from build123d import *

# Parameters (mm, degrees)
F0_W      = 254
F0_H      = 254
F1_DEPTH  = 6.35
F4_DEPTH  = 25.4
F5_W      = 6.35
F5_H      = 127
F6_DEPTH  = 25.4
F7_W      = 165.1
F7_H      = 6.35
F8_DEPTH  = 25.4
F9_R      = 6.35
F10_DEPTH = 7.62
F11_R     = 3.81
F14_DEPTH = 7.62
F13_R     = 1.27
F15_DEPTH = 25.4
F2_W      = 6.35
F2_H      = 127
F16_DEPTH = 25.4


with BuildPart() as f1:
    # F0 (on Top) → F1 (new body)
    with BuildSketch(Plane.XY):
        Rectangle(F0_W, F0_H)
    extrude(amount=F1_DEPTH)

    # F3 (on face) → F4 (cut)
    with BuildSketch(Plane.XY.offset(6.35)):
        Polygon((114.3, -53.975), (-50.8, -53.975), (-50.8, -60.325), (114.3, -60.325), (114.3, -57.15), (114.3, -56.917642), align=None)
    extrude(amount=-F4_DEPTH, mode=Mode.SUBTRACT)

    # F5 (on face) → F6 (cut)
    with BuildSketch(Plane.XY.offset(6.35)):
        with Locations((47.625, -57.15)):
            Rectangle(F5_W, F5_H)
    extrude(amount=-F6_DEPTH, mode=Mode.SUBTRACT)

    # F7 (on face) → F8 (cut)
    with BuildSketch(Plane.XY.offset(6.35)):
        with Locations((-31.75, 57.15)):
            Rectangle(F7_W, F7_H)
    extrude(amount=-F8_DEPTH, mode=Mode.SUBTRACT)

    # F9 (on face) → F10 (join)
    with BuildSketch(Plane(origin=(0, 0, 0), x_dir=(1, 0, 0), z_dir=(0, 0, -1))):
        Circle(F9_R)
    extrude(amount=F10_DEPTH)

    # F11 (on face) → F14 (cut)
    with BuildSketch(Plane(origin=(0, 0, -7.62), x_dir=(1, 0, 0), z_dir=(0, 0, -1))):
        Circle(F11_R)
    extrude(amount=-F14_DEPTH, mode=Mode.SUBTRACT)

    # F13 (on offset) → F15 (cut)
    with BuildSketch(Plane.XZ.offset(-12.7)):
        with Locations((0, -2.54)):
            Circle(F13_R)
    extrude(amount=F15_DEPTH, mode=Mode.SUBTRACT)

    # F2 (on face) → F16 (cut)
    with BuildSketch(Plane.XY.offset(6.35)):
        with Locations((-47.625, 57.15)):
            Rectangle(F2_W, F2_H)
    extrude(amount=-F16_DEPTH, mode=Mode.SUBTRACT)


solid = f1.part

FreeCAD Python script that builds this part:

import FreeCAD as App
import Part
import Sketcher

V = App.Vector
Q = App.Units.Quantity


def add_polygon(sketch, points):
    """Adds a closed chain of lines whose ends are joined by coincident constraints."""
    first, n = sketch.GeometryCount, len(points)
    for a, b in zip(points, points[1:] + points[:1]):
        sketch.addGeometry(Part.LineSegment(App.Vector(*a, 0), App.Vector(*b, 0)), False)
    for i in range(n):
        sketch.addConstraint(Sketcher.Constraint("Coincident", first + i, 2, first + (i + 1) % n, 1))

doc = App.newDocument("Part")
params = doc.addObject("Spreadsheet::Sheet", "Params")
for row, (alias, value) in enumerate([
    ("sketch1_width", "10 in"),
    ("pad1_length", "0.25 in"),
    ("sketch2_width", "6.5 in"),
    ("sketch2_height", "0.25 in"),
    ("pocket1_length", "1 in"),
    ("sketch3_height", "5 in"),
    ("sketch3_width", "0.25 in"),
    ("pocket2_length", "1 in"),
    ("sketch4_width", "6.5 in"),
    ("sketch4_height", "0.25 in"),
    ("pocket3_length", "1 in"),
    ("sketch5_diameter", "0.5 in"),
    ("pad2_length", "0.3 in"),
    ("sketch6_diameter", "0.3 in"),
    ("pocket4_length", "0.3 in"),
    ("sketch7_diameter", "0.1 in"),
    ("pocket5_length", "1 in"),
    ("sketch8_height", "5 in"),
    ("sketch8_width", "0.25 in"),
    ("pocket6_length", "1 in"),
], start=1):
    params.set(f"A{row}", alias)
    params.set(f"B{row}", "=" + value)
    params.setAlias(f"B{row}", alias)

body = doc.addObject("PartDesign::Body", "Body")

# Sketch on XY plane
sketch1 = body.newObject("Sketcher::SketchObject", "Sketch")
sketch1.AttachmentSupport = (doc.getObject("XY_Plane"), [""])
sketch1.MapMode = "FlatFace"
add_polygon(sketch1, [(-127, 127), (-127, -127), (127, -127), (127, 127)])  # lines 0-3
sketch1.addConstraint([
    Sketcher.Constraint("Vertical", 0),
    Sketcher.Constraint("Horizontal", 1),
    Sketcher.Constraint("Vertical", 2),
    Sketcher.Constraint("Horizontal", 3),
    Sketcher.Constraint("Symmetric", 0, 2, 2, 2, -1, 1),
    Sketcher.Constraint("Equal", 3, 0),
    Sketcher.Constraint("DistanceX", 1, 1, 1, 2, Q("10 in")),
])
sketch1.setExpression("Constraints[10]", "Params.sketch1_width")
pad1 = body.newObject("PartDesign::Pad", "Pad")
pad1.Profile = sketch1
pad1.setExpression("Length", "Params.pad1_length")

# Sketch on XY plane
sketch2 = body.newObject("Sketcher::SketchObject", "Sketch001")
sketch2.AttachmentSupport = (doc.getObject("XY_Plane"), [""])
sketch2.MapMode = "FlatFace"
sketch2.AttachmentOffset = App.Placement(V(0, 0, 0.25 * 25.4), App.Rotation())
add_polygon(sketch2, [(114, -54), (-51, -54), (-51, -60), (114, -60)])  # lines 0-3
sketch2.addConstraint([
    Sketcher.Constraint("Horizontal", 0),
    Sketcher.Constraint("Vertical", 1),
    Sketcher.Constraint("Horizontal", 2),
    Sketcher.Constraint("Vertical", 3),
    Sketcher.Constraint("DistanceX", 0, 2, 0, 1, Q("6.5 in")),
    Sketcher.Constraint("DistanceX", 0, 2, -1, 1, Q("2 in")),
    Sketcher.Constraint("DistanceY", 1, 2, 1, 1, Q("0.25 in")),
    Sketcher.Constraint("DistanceY", 0, 2, -1, 1, Q("2.125 in")),
])
sketch2.setExpression("Constraints[8]", "Params.sketch2_width")
sketch2.setExpression("Constraints[10]", "Params.sketch2_height")
pocket1 = body.newObject("PartDesign::Pocket", "Pocket")
pocket1.Profile = sketch2
pocket1.setExpression("Length", "Params.pocket1_length")

# Sketch on XY plane
sketch3 = body.newObject("Sketcher::SketchObject", "Sketch002")
sketch3.AttachmentSupport = (doc.getObject("XY_Plane"), [""])
sketch3.MapMode = "FlatFace"
sketch3.AttachmentOffset = App.Placement(V(0, 0, 0.25 * 25.4), App.Rotation())
add_polygon(sketch3, [(44, 6), (44, -121), (51, -121), (51, 6)])  # lines 0-3
sketch3.addConstraint([
    Sketcher.Constraint("Vertical", 0),
    Sketcher.Constraint("Horizontal", 1),
    Sketcher.Constraint("Vertical", 2),
    Sketcher.Constraint("Horizontal", 3),
    Sketcher.Constraint("DistanceY", 0, 2, 0, 1, Q("5 in")),
    Sketcher.Constraint("DistanceX", -1, 1, 1, 2, Q("2 in")),
    Sketcher.Constraint("DistanceX", 1, 1, 1, 2, Q("0.25 in")),
    Sketcher.Constraint("DistanceY", 0, 2, -1, 1, Q("4.75 in")),
])
sketch3.setExpression("Constraints[8]", "Params.sketch3_height")
sketch3.setExpression("Constraints[10]", "Params.sketch3_width")
pocket2 = body.newObject("PartDesign::Pocket", "Pocket001")
pocket2.Profile = sketch3
pocket2.setExpression("Length", "Params.pocket2_length")

# Sketch on XY plane
sketch4 = body.newObject("Sketcher::SketchObject", "Sketch003")
sketch4.AttachmentSupport = (doc.getObject("XY_Plane"), [""])
sketch4.MapMode = "FlatFace"
sketch4.AttachmentOffset = App.Placement(V(0, 0, 0.25 * 25.4), App.Rotation())
add_polygon(sketch4, [(-114, 60), (-114, 54), (51, 54), (51, 60)])  # lines 0-3
sketch4.addConstraint([
    Sketcher.Constraint("Vertical", 0),
    Sketcher.Constraint("Horizontal", 1),
    Sketcher.Constraint("Vertical", 2),
    Sketcher.Constraint("Horizontal", 3),
    Sketcher.Constraint("DistanceX", 1, 1, 1, 2, Q("6.5 in")),
    Sketcher.Constraint("DistanceX", -1, 1, 1, 2, Q("2 in")),
    Sketcher.Constraint("DistanceY", 0, 2, 0, 1, Q("0.25 in")),
    Sketcher.Constraint("DistanceY", -1, 1, 0, 2, Q("2.125 in")),
])
sketch4.setExpression("Constraints[8]", "Params.sketch4_width")
sketch4.setExpression("Constraints[10]", "Params.sketch4_height")
pocket3 = body.newObject("PartDesign::Pocket", "Pocket002")
pocket3.Profile = sketch4
pocket3.setExpression("Length", "Params.pocket3_length")

# Sketch on XY plane
sketch5 = body.newObject("Sketcher::SketchObject", "Sketch004")
sketch5.AttachmentSupport = (doc.getObject("XY_Plane"), [""])
sketch5.MapMode = "FlatFace"
sketch5.addGeometry(Part.Circle(V(0, 0, 0), V(0, 0, 1), 6), False)
sketch5.addConstraint([
    Sketcher.Constraint("Coincident", 0, 3, -1, 1),
    Sketcher.Constraint("Diameter", 0, Q("0.5 in")),
])
sketch5.setExpression("Constraints[1]", "Params.sketch5_diameter")
pad2 = body.newObject("PartDesign::Pad", "Pad001")
pad2.Profile = sketch5
pad2.setExpression("Length", "Params.pad2_length")
pad2.Reversed = True

# Sketch on XY plane
sketch6 = body.newObject("Sketcher::SketchObject", "Sketch005")
sketch6.AttachmentSupport = (doc.getObject("XY_Plane"), [""])
sketch6.MapMode = "FlatFace"
sketch6.AttachmentOffset = App.Placement(V(0, 0, -0.3 * 25.4), App.Rotation())
sketch6.addGeometry(Part.Circle(V(0, 0, 0), V(0, 0, 1), 3.8), False)
sketch6.addConstraint([
    Sketcher.Constraint("Coincident", 0, 3, -1, 1),
    Sketcher.Constraint("Diameter", 0, Q("0.3 in")),
])
sketch6.setExpression("Constraints[1]", "Params.sketch6_diameter")
pocket4 = body.newObject("PartDesign::Pocket", "Pocket003")
pocket4.Profile = sketch6
pocket4.setExpression("Length", "Params.pocket4_length")
pocket4.Reversed = True

# Sketch on XZ plane
sketch7 = body.newObject("Sketcher::SketchObject", "Sketch006")
sketch7.AttachmentSupport = (doc.getObject("XZ_Plane"), [""])
sketch7.MapMode = "FlatFace"
sketch7.AttachmentOffset = App.Placement(V(0, 0, -0.5 * 25.4), App.Rotation())
sketch7.addGeometry(Part.Circle(V(0, -2.5, 0), V(0, 0, 1), 1.3), False)
sketch7.addConstraint([
    Sketcher.Constraint("PointOnObject", 0, 3, -2),
    Sketcher.Constraint("Diameter", 0, Q("0.1 in")),
    Sketcher.Constraint("DistanceY", 0, 3, -1, 1, Q("0.1 in")),
])
sketch7.setExpression("Constraints[1]", "Params.sketch7_diameter")
pocket5 = body.newObject("PartDesign::Pocket", "Pocket004")
pocket5.Profile = sketch7
pocket5.setExpression("Length", "Params.pocket5_length")
pocket5.Reversed = True

# Sketch on XY plane
sketch8 = body.newObject("Sketcher::SketchObject", "Sketch007")
sketch8.AttachmentSupport = (doc.getObject("XY_Plane"), [""])
sketch8.MapMode = "FlatFace"
sketch8.AttachmentOffset = App.Placement(V(0, 0, 0.25 * 25.4), App.Rotation())
add_polygon(sketch8, [(-51, 121), (-51, -6), (-44, -6), (-44, 121)])  # lines 0-3
sketch8.addConstraint([
    Sketcher.Constraint("Vertical", 0),
    Sketcher.Constraint("Horizontal", 1),
    Sketcher.Constraint("Vertical", 2),
    Sketcher.Constraint("Horizontal", 3),
    Sketcher.Constraint("DistanceY", 0, 2, 0, 1, Q("5 in")),
    Sketcher.Constraint("DistanceX", 0, 2, -1, 1, Q("2 in")),
    Sketcher.Constraint("DistanceX", 1, 1, 1, 2, Q("0.25 in")),
    Sketcher.Constraint("DistanceY", 0, 2, -1, 1, Q("0.25 in")),
])
sketch8.setExpression("Constraints[8]", "Params.sketch8_height")
sketch8.setExpression("Constraints[10]", "Params.sketch8_width")
pocket6 = body.newObject("PartDesign::Pocket", "Pocket005")
pocket6.Profile = sketch8
pocket6.setExpression("Length", "Params.pocket6_length")

doc.recompute()
